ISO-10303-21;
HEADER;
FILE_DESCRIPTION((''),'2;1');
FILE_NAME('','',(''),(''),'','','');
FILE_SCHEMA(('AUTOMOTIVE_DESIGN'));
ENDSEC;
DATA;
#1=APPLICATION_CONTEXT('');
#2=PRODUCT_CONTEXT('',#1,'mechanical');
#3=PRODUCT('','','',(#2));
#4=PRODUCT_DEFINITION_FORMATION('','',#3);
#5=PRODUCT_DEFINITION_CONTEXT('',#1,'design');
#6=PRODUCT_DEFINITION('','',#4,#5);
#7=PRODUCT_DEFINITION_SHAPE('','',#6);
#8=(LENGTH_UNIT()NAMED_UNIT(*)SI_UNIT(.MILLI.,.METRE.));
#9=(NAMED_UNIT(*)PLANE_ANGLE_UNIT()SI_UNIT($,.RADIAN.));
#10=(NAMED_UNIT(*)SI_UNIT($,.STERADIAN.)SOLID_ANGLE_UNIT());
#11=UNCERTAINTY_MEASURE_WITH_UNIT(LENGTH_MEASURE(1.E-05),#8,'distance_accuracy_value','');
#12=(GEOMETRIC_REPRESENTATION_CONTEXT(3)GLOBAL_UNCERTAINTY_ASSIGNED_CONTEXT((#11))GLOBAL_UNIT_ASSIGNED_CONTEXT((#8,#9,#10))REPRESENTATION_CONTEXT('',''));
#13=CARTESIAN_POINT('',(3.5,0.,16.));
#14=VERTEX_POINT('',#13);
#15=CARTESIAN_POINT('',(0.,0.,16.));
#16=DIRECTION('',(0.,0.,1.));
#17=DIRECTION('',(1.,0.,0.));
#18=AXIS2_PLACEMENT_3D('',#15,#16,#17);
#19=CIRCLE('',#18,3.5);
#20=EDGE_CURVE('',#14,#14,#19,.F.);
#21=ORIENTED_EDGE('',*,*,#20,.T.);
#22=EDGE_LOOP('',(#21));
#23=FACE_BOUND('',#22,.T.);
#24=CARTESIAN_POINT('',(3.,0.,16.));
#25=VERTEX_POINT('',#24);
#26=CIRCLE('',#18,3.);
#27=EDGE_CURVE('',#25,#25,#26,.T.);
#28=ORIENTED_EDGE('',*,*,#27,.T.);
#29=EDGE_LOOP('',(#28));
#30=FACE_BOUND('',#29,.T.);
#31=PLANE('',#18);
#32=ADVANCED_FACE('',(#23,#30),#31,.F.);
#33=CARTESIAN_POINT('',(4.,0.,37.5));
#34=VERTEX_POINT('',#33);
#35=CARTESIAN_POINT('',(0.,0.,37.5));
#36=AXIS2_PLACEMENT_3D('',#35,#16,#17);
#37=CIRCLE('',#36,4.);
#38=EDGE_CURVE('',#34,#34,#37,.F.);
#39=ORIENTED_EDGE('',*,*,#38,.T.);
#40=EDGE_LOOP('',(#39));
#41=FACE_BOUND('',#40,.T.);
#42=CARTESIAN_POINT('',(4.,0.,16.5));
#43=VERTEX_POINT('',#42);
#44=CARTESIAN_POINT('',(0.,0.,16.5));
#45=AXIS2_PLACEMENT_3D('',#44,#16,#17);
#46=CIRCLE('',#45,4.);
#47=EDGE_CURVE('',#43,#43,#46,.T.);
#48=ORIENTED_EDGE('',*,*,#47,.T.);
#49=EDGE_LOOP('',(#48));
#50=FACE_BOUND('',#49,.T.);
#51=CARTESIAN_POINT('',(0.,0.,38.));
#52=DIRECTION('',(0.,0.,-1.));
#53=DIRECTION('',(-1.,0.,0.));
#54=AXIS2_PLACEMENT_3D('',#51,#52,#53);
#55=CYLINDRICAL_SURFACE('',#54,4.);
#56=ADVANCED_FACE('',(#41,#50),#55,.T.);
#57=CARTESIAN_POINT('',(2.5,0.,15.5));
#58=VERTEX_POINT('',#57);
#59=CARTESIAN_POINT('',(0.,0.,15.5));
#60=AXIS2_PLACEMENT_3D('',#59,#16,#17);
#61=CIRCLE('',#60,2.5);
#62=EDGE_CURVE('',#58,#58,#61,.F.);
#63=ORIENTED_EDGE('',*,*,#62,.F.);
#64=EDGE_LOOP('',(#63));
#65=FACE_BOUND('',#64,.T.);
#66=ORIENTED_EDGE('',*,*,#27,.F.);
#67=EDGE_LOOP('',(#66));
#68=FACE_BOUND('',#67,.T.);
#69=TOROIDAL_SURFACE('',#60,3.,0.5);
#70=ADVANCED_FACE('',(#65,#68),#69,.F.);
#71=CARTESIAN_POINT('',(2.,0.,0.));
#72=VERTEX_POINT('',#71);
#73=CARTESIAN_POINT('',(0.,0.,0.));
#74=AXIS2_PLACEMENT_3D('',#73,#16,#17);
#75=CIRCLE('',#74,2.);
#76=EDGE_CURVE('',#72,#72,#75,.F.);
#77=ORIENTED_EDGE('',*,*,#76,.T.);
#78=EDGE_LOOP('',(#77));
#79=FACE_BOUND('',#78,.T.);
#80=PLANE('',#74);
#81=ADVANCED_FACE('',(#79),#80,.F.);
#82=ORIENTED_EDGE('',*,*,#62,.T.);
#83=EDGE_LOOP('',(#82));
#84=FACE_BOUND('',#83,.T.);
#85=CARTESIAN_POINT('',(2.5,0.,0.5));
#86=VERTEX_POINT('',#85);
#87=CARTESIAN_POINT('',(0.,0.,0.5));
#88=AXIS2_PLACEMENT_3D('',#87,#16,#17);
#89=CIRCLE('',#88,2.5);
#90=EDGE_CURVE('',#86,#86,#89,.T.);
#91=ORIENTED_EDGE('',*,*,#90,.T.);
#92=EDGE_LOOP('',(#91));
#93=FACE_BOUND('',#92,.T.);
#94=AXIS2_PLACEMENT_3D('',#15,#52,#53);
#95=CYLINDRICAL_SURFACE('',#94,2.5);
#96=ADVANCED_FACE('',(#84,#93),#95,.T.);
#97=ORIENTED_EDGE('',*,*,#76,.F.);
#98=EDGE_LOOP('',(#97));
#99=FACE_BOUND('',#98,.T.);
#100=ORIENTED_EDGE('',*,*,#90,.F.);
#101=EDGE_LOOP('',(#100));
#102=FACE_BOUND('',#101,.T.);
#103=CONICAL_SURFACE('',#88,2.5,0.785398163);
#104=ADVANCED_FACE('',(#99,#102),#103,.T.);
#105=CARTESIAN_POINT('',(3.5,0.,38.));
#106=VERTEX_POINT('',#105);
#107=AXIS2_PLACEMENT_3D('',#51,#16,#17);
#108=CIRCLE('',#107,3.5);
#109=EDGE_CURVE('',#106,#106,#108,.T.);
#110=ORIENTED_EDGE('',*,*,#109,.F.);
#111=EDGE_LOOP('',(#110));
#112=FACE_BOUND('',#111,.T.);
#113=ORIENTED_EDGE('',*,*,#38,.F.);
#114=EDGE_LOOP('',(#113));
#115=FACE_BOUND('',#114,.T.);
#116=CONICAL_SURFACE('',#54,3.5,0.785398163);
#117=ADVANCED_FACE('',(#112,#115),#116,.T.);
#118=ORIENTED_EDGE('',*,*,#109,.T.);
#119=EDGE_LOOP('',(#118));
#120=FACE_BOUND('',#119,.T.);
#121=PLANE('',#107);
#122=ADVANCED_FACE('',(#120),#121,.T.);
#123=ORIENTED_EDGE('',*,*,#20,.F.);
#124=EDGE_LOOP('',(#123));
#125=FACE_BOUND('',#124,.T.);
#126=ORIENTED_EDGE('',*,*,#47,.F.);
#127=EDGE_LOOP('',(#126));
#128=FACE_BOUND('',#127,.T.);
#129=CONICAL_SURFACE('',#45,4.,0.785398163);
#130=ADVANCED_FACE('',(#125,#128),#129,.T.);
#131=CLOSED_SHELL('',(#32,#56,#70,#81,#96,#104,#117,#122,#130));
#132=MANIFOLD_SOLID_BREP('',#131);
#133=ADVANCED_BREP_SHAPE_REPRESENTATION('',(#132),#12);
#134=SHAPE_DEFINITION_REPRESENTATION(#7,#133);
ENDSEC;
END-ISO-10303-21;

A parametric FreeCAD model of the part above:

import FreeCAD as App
import Part
import Sketcher


def edges_at(feature, points):
    """Names of the edges that pass closest to the given points."""
    edges = feature.Shape.Edges
    near = lambda p: min(range(len(edges)), key=lambda i: edges[i].distToShape(Part.Vertex(*p))[0])
    return sorted({f"Edge{near(p) + 1}" for p in points})

doc = App.newDocument("Part")
params = doc.addObject("Spreadsheet::Sheet", "Params")
for row, (alias, value) in enumerate([
    ("sketch1_diameter", "5 mm"),
    ("pad1_length", "16 mm"),
    ("sketch2_diameter", "8 mm"),
    ("pad2_length", "22 mm"),
    ("chamfer_size", "0.5 mm"),
    ("fillet_radius", "0.5 mm"),
], start=1):
    params.set(f"A{row}", alias)
    params.set(f"B{row}", "=" + value)
    params.setAlias(f"B{row}", alias)

body = doc.addObject("PartDesign::Body", "Body")

# Sketch on XY plane
sketch1 = doc.addObject("Sketcher::SketchObject", "Sketch")
body.addObject(sketch1)
sketch1.AttachmentSupport = (doc.XY_Plane, [""])
sketch1.MapMode = "FlatFace"
sketch1.addGeometry(Part.Circle(App.Vector(0, 0, 0), App.Vector(0, 0, 1), 2.5), False)
sketch1.addConstraint(Sketcher.Constraint("Coincident", 0, 3, -1, 1))
sketch1.addConstraint(Sketcher.Constraint("Diameter", 0, 5.0))
sketch1.setExpression("Constraints[1]", "Params.sketch1_diameter")
pad1 = doc.addObject("PartDesign::Pad", "Pad")
body.addObject(pad1)
pad1.Profile = sketch1
pad1.setExpression("Length", "Params.pad1_length")

# Sketch on XY plane
sketch2 = doc.addObject("Sketcher::SketchObject", "Sketch001")
body.addObject(sketch2)
sketch2.AttachmentSupport = (doc.XY_Plane, [""])
sketch2.MapMode = "FlatFace"
sketch2.AttachmentOffset = App.Placement(App.Vector(0, 0, 16), App.Rotation())
sketch2.addGeometry(Part.Circle(App.Vector(0, 0, 0), App.Vector(0, 0, 1), 4), False)
sketch2.addConstraint(Sketcher.Constraint("Coincident", 0, 3, -1, 1))
sketch2.addConstraint(Sketcher.Constraint("Diameter", 0, 8.0))
sketch2.setExpression("Constraints[1]", "Params.sketch2_diameter")
pad2 = doc.addObject("PartDesign::Pad", "Pad001")
body.addObject(pad2)
pad2.Profile = sketch2
pad2.setExpression("Length", "Params.pad2_length")
doc.recompute()

chamfer = doc.addObject("PartDesign::Chamfer", "Chamfer")
body.addObject(chamfer)
chamfer.Base = (pad2, edges_at(pad2, [(-2.5, 0, 0), (-4, 0, 16), (-4, 0, 38)]))
chamfer.setExpression("Size", "Params.chamfer_size")
doc.recompute()

fillet = doc.addObject("PartDesign::Fillet", "Fillet")
body.addObject(fillet)
fillet.Base = (chamfer, edges_at(chamfer, [(-2.5, 0, 16)]))
fillet.setExpression("Radius", "Params.fillet_radius")

doc.recompute()
